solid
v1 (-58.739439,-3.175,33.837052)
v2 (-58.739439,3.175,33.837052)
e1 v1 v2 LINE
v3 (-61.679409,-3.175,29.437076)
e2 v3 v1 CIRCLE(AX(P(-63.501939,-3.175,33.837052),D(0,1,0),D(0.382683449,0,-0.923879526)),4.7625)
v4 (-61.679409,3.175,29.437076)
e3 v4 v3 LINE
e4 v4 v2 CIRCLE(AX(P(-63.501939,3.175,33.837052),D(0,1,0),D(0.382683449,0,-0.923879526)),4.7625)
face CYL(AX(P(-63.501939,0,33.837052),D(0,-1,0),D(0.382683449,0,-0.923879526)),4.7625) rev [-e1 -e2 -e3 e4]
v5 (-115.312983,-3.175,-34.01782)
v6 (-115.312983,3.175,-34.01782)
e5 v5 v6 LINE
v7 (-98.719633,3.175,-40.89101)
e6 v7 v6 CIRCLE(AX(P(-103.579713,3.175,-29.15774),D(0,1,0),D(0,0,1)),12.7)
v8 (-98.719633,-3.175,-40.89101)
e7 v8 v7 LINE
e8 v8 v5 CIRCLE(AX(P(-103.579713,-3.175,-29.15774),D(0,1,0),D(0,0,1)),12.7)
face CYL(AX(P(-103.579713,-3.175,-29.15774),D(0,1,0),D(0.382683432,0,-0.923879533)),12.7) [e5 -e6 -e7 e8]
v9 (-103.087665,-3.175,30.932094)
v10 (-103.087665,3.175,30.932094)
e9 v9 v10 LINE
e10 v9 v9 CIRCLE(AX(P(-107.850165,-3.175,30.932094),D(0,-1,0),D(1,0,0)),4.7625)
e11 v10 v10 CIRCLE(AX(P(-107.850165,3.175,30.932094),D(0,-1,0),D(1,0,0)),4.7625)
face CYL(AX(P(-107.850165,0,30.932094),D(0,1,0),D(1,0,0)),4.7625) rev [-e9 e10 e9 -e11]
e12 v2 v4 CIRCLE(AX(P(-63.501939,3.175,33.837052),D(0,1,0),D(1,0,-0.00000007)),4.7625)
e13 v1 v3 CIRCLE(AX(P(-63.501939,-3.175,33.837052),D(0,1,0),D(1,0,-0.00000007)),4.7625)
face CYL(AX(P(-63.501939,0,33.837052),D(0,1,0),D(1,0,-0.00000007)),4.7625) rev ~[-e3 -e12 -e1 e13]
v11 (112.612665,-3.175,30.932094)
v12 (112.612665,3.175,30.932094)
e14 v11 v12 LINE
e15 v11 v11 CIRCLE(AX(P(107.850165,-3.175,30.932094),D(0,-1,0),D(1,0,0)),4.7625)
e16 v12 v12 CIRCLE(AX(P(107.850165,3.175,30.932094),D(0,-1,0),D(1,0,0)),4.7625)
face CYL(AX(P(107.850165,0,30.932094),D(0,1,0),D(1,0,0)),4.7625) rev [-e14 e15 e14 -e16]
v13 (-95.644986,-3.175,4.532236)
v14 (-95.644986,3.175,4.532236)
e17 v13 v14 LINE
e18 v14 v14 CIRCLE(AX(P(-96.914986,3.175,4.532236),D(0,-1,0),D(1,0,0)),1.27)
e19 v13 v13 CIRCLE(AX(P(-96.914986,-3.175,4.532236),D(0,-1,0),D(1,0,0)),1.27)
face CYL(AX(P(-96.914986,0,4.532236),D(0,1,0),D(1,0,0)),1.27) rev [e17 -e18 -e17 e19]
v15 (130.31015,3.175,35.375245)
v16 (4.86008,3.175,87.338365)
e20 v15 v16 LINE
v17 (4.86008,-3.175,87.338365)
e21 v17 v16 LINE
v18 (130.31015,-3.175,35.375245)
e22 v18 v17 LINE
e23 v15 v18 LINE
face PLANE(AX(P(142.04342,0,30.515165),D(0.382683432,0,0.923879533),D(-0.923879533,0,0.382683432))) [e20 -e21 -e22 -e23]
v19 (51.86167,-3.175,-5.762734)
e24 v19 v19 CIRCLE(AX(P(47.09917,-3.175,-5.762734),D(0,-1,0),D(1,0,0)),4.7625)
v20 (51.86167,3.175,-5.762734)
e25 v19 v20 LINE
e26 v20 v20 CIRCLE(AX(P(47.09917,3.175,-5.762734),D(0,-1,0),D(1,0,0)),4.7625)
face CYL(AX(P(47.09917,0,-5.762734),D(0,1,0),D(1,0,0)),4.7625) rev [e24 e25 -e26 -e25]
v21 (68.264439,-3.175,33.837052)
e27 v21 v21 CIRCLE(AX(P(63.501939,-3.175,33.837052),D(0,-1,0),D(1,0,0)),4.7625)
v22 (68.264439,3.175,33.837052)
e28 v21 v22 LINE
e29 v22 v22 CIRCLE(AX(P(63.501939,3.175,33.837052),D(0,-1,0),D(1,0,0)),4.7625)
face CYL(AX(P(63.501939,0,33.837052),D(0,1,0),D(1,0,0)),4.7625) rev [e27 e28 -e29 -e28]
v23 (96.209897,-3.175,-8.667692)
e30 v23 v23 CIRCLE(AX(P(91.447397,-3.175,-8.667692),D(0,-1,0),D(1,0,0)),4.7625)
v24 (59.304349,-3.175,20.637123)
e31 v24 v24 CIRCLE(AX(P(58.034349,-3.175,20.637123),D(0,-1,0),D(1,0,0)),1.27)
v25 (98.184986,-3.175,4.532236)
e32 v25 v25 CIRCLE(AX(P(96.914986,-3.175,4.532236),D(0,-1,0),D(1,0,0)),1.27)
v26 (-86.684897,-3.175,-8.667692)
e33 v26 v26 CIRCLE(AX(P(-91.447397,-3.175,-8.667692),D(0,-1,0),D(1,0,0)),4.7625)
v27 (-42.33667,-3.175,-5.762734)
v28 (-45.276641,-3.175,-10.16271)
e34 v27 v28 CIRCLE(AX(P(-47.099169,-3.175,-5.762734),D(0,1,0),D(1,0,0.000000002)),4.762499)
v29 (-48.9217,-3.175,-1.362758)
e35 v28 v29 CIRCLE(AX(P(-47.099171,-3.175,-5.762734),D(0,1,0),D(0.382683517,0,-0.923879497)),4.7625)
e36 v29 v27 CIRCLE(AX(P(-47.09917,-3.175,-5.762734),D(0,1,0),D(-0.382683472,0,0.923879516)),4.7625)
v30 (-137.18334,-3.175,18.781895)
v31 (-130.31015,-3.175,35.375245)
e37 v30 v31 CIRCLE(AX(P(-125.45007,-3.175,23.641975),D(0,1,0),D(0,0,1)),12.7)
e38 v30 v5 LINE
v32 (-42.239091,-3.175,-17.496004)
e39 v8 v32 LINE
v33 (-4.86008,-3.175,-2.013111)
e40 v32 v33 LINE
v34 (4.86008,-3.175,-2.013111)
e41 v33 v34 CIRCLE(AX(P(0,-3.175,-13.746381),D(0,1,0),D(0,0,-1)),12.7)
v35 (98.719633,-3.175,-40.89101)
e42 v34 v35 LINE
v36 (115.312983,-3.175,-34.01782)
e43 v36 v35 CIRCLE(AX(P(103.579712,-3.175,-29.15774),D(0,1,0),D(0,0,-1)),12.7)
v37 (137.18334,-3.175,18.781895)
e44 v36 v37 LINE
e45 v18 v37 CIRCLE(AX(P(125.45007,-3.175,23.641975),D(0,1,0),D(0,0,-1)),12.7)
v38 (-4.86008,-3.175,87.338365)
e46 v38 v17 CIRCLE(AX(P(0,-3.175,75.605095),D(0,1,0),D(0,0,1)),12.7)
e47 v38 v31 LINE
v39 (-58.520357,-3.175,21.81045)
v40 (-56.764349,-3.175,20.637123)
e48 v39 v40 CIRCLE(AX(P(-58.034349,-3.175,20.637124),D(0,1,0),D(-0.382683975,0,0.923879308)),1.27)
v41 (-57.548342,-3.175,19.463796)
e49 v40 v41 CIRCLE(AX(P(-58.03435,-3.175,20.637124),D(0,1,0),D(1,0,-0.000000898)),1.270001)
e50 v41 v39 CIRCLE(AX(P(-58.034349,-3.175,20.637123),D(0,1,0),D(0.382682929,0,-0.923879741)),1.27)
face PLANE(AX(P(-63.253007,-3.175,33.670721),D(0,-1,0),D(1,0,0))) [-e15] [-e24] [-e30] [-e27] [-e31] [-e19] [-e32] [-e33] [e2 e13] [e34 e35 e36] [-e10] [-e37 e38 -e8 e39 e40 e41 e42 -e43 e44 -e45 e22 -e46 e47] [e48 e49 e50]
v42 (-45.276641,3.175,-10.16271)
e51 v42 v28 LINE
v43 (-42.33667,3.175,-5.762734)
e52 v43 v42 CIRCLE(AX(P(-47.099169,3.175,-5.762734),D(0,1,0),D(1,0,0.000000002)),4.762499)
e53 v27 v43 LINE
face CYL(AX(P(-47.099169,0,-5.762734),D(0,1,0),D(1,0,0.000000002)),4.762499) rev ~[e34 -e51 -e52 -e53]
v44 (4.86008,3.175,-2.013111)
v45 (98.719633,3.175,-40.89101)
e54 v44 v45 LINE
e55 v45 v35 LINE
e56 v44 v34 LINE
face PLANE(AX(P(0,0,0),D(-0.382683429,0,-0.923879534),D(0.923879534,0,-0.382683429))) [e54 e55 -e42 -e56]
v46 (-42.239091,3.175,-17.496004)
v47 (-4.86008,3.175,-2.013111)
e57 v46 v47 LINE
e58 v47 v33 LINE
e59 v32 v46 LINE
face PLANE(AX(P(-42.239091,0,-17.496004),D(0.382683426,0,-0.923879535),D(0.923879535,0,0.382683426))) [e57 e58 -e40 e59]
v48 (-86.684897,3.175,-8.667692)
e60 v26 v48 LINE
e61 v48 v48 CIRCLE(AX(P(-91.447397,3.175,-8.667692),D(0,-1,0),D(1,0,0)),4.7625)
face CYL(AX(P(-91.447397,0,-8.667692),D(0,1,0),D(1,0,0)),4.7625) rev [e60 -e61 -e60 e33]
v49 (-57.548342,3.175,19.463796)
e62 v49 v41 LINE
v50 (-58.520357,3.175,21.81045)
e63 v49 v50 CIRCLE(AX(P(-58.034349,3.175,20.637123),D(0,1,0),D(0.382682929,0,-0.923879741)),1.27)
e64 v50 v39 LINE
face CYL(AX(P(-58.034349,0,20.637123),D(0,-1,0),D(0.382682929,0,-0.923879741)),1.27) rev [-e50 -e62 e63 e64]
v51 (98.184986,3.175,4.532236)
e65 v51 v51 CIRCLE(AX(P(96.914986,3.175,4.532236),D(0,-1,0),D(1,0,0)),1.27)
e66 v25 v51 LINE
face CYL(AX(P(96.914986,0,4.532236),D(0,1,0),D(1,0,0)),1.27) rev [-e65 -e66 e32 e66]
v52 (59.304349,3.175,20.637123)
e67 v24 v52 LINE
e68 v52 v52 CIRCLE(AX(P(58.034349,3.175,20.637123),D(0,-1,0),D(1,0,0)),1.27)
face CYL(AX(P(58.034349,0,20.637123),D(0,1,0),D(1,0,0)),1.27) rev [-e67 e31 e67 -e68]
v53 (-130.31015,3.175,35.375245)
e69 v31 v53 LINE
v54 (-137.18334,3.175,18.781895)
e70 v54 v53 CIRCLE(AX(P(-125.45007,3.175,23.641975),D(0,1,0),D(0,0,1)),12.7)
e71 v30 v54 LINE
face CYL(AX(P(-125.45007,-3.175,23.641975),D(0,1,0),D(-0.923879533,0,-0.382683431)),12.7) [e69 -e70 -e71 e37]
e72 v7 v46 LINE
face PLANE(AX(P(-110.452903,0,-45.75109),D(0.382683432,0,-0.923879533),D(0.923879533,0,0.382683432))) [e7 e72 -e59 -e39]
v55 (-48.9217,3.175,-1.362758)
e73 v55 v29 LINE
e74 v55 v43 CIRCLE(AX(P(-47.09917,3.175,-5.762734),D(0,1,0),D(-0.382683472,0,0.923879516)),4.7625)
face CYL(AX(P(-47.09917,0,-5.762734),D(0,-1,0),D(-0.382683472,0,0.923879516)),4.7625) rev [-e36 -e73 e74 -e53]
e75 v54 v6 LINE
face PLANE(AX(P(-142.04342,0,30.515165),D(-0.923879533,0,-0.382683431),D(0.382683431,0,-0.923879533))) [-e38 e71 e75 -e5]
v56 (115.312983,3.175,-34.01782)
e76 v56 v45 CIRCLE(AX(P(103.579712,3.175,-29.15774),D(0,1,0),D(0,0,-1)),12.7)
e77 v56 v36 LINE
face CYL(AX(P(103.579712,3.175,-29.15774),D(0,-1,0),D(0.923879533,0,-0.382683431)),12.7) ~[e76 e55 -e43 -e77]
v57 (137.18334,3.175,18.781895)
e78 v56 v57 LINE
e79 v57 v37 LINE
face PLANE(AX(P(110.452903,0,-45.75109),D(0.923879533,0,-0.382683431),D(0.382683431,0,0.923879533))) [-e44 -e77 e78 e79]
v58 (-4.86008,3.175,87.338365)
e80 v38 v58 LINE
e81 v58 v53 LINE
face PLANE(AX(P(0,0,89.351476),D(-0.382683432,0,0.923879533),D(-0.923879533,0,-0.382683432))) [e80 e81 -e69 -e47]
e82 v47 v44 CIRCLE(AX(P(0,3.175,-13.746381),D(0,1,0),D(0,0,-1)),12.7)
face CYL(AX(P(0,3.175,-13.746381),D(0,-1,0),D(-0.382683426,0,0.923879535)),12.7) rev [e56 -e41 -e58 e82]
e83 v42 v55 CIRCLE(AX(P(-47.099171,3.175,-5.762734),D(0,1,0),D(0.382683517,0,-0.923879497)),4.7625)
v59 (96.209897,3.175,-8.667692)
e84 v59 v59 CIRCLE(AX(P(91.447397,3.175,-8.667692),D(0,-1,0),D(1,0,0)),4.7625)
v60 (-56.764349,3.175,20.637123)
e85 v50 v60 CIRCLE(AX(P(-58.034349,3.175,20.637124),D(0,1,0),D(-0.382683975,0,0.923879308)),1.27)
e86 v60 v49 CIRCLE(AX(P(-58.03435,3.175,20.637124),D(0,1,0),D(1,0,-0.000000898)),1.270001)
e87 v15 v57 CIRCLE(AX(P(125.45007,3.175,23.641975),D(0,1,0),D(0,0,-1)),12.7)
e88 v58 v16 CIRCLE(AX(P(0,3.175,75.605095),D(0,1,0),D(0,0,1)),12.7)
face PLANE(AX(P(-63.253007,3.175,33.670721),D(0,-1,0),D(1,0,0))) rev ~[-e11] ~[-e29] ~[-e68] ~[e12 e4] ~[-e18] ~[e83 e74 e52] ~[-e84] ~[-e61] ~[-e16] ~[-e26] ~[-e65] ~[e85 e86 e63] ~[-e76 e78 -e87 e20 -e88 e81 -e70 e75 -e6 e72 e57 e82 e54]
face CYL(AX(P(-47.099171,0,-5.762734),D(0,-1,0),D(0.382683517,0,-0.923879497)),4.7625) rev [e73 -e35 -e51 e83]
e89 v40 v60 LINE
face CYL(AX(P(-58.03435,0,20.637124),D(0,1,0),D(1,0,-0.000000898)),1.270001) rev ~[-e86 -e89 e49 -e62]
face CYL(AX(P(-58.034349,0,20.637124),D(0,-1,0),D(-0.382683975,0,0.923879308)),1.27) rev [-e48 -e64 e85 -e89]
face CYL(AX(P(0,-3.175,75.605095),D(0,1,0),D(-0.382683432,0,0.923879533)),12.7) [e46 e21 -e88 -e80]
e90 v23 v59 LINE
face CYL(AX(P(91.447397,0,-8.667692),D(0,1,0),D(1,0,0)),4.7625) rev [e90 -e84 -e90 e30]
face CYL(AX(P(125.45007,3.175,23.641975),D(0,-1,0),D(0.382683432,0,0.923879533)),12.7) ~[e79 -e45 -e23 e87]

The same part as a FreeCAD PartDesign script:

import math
import FreeCAD as App
import Part
import Sketcher
from FreeCAD import Vector
Q = App.Units.Quantity


def edges_at(feature, points):
    """Names of the edges that pass closest to the given points."""
    edges = feature.Shape.Edges
    near = lambda p: min(range(len(edges)), key=lambda i: edges[i].distToShape(Part.Vertex(*p))[0])
    return sorted({f"Edge{near(p) + 1}" for p in points})

doc = App.newDocument("Part")
body = doc.addObject("PartDesign::Body", "Body")

sketch1 = body.newObject("Sketcher::SketchObject", "Sketch")
sketch1.AttachmentSupport = (doc.getObject("XZ_Plane"), [""])
sketch1.MapMode = "FlatFace"
sketch1.addGeometry([
    Part.LineSegment(Vector(-42.2, -17.5, 0), Vector(0, 0, 0)),
    Part.LineSegment(Vector(0, 0, 0), Vector(110.5, -45.8, 0)),
    Part.LineSegment(Vector(110.5, -45.8, 0), Vector(142, 30.5, 0)),
    Part.LineSegment(Vector(142, 30.5, 0), Vector(0, 89.4, 0)),
    Part.LineSegment(Vector(0, 89.4, 0), Vector(-142, 30.5, 0)),
    Part.LineSegment(Vector(-142, 30.5, 0), Vector(-110.5, -45.8, 0)),
    Part.LineSegment(Vector(-110.5, -45.8, 0), Vector(-42.2, -17.5, 0)),
    Part.Circle(Vector(-91.4, -8.7, 0), Vector(0, 0, 1), 4.8),
    Part.ArcOfCircle(Part.Circle(Vector(-47.1, -5.8, 0), Vector(0, 0, 1), 4.8), math.radians(0), math.radians(113)),
    Part.ArcOfCircle(Part.Circle(Vector(-47.1, -5.8, 0), Vector(0, 0, 1), 4.8), math.radians(-68), math.radians(0)),
    Part.ArcOfCircle(Part.Circle(Vector(-47.1, -5.8, 0), Vector(0, 0, 1), 4.8), math.radians(112), math.radians(293)),
    Part.Circle(Vector(-96.9, 4.5, 0), Vector(0, 0, 1), 1.3),
    Part.Circle(Vector(47.1, -5.8, 0), Vector(0, 0, 1), 4.8),
    Part.Circle(Vector(91.4, -8.7, 0), Vector(0, 0, 1), 4.8),
    Part.Circle(Vector(96.9, 4.5, 0), Vector(0, 0, 1), 1.3),
    Part.ArcOfCircle(Part.Circle(Vector(-58, 20.6, 0), Vector(0, 0, 1), 1.3), math.radians(0), math.radians(113)),
    Part.ArcOfCircle(Part.Circle(Vector(-58, 20.6, 0), Vector(0, 0, 1), 1.3), math.radians(-68), math.radians(0)),
    Part.ArcOfCircle(Part.Circle(Vector(-58, 20.6, 0), Vector(0, 0, 1), 1.3), math.radians(112), math.radians(292)),
    Part.Circle(Vector(-107.9, 30.9, 0), Vector(0, 0, 1), 4.8),
    Part.ArcOfCircle(Part.Circle(Vector(-63.5, 33.8, 0), Vector(0, 0, 1), 4.8), math.radians(0), math.radians(293)),
    Part.ArcOfCircle(Part.Circle(Vector(-63.5, 33.8, 0), Vector(0, 0, 1), 4.8), math.radians(-67), math.radians(0)),
    Part.Circle(Vector(58, 20.6, 0), Vector(0, 0, 1), 1.3),
    Part.Circle(Vector(107.9, 30.9, 0), Vector(0, 0, 1), 4.8),
    Part.Circle(Vector(63.5, 33.8, 0), Vector(0, 0, 1), 4.8),
], False)
sketch1.addConstraint([
    Sketcher.Constraint("Coincident", 0, 2, 1, 1),
    Sketcher.Constraint("Coincident", 1, 2, 2, 1),
    Sketcher.Constraint("Coincident", 2, 2, 3, 1),
    Sketcher.Constraint("Coincident", 3, 2, 4, 1),
    Sketcher.Constraint("Coincident", 4, 2, 5, 1),
    Sketcher.Constraint("Coincident", 5, 2, 6, 1),
    Sketcher.Constraint("Coincident", 6, 2, 0, 1),
    Sketcher.Constraint("Tangent", 8, 1, 9, 2),
    Sketcher.Constraint("Tangent", 9, 1, 10, 2),
    Sketcher.Constraint("Tangent", 10, 1, 8, 2),
    Sketcher.Constraint("Tangent", 15, 1, 16, 2),
    Sketcher.Constraint("Tangent", 16, 1, 17, 2),
    Sketcher.Constraint("Tangent", 17, 1, 15, 2),
    Sketcher.Constraint("Tangent", 19, 1, 20, 2),
    Sketcher.Constraint("Coincident", 20, 1, 19, 2),
    Sketcher.Constraint("Coincident", 0, 2, -1, 1),
    Sketcher.Constraint("Equal", 7, 8),
    Sketcher.Constraint("Equal", 10, 12),
    Sketcher.Constraint("Equal", 12, 13),
    Sketcher.Constraint("Equal", 11, 14),
    Sketcher.Constraint("Equal", 14, 15),
    Sketcher.Constraint("Equal", 13, 18),
    Sketcher.Constraint("Equal", 18, 19),
    Sketcher.Constraint("Equal", 17, 21),
    Sketcher.Constraint("Equal", 20, 22),
    Sketcher.Constraint("Equal", 22, 23),
    Sketcher.Constraint("Symmetric", 8, 3, 12, 3, -2),
    Sketcher.Constraint("Symmetric", 7, 3, 13, 3, -2),
    Sketcher.Constraint("Symmetric", 11, 3, 14, 3, -2),
    Sketcher.Constraint("Symmetric", 15, 3, 21, 3, -2),
    Sketcher.Constraint("Symmetric", 18, 3, 22, 3, -2),
    Sketcher.Constraint("Symmetric", 19, 3, 23, 3, -2),
    Sketcher.Constraint("Symmetric", 2, 2, 4, 2, -2),
    Sketcher.Constraint("Symmetric", 1, 2, 5, 2, -2),
    Sketcher.Constraint("PointOnObject", 3, 2, -2),
    Sketcher.Constraint("Perpendicular", 1, 2),
    Sketcher.Constraint("Perpendicular", 2, 3),
    Sketcher.Constraint("Parallel", 0, 4),
    Sketcher.Constraint("Horizontal", 12, 3, 8, 1),
    Sketcher.Constraint("Horizontal", 21, 3, 15, 1),
    Sketcher.Constraint("Horizontal", 23, 3, 19, 1),
    Sketcher.Constraint("Diameter", 11, Q("0.1 in")),
    Sketcher.Constraint("Diameter", 7, Q("0.375 in")),
    Sketcher.Constraint("Angle", 0, Q("22.5 deg")),
    Sketcher.Constraint("Distance", 2, Q("3.25 in")),
    Sketcher.Constraint("Distance", 6, Q("73.834098 mm")),
    Sketcher.Constraint("DistanceX", 10, 1, -1, 1, Q("48.9217 mm")),
    Sketcher.Constraint("Distance", 1, Q("119.553361 mm")),
    Sketcher.Constraint("DistanceX", 8, 3, -1, 1, Q("47.09917 mm")),
    Sketcher.Constraint("DistanceX", 15, 3, -1, 1, Q("58.034349 mm")),
    Sketcher.Constraint("DistanceX", 19, 3, -1, 1, Q("63.501939 mm")),
    Sketcher.Constraint("DistanceX", 9, 1, -1, 1, Q("45.276641 mm")),
    Sketcher.Constraint("DistanceY", 9, 1, -1, 1, Q("10.16271 mm")),
    Sketcher.Constraint("DistanceY", -1, 1, 17, 1, Q("21.81045 mm")),
    Sketcher.Constraint("DistanceX", 20, 1, -1, 1, Q("61.679409 mm")),
    Sketcher.Constraint("DistanceX", 11, 3, 7, 3, Q("5.467589 mm")),
    Sketcher.Constraint("DistanceY", 10, 3, 11, 3, Q("10.29497 mm")),
    Sketcher.Constraint("DistanceY", 7, 3, 12, 3, Q("2.904958 mm")),
    Sketcher.Constraint("DistanceX", 10, 3, 13, 3, Q("138.546568 mm")),
    Sketcher.Constraint("DistanceY", 10, 3, 16, 3, Q("26.399858 mm")),
    Sketcher.Constraint("DistanceX", 18, 3, 11, 3, Q("10.935179 mm")),
    Sketcher.Constraint("DistanceY", 16, 3, 18, 3, Q("10.29497 mm")),
    Sketcher.Constraint("DistanceY", 15, 3, 19, 3, Q("13.199928 mm")),
    Sketcher.Constraint("DistanceX", 16, 3, 16, 1, Q("0.486008 mm")),
])
pad1 = body.newObject("PartDesign::Pad", "Pad")
pad1.Profile = sketch1
pad1.Length = Q("0.25 in")
pad1.Midplane = True
doc.recompute()

fillet = body.newObject("PartDesign::Fillet", "Fillet")
fillet.Base = (pad1, edges_at(pad1, [
    (-142.043, 0, 30.515),
    (0, 0, 89.351),
    (0, 0, 0),
    (110.453, 0, -45.751),
    (142.043, 0, 30.515),
    (-110.453, 0, -45.751),
]))
fillet.Radius = Q("0.5 in")

doc.recompute()
